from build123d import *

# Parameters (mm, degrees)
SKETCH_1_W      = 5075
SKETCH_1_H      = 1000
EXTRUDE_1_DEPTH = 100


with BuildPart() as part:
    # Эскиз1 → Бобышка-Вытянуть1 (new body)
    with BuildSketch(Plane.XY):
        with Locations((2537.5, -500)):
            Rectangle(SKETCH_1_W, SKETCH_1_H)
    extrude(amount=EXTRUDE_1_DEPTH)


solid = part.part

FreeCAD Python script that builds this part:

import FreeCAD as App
import Part
import Sketcher

V = App.Vector
Q = App.Units.Quantity

doc = App.newDocument("Part")
body = doc.addObject("PartDesign::Body", "Body")

sketch1 = body.newObject("Sketcher::SketchObject", "Sketch")
sketch1.AttachmentSupport = (doc.getObject("XY_Plane"), [""])
sketch1.MapMode = "FlatFace"
sketch1.addGeometry([
    Part.LineSegment(V(0, 0, 0), V(0, -1000, 0)),
    Part.LineSegment(V(0, -1000, 0), V(5075, -1000, 0)),
    Part.LineSegment(V(5075, -1000, 0), V(5075, 0, 0)),
    Part.LineSegment(V(5075, 0, 0), V(0, 0, 0)),
], False)
sketch1.addConstraint([
    Sketcher.Constraint("Coincident", 0, 2, 1, 1),
    Sketcher.Constraint("Coincident", 1, 2, 2, 1),
    Sketcher.Constraint("Coincident", 2, 2, 3, 1),
    Sketcher.Constraint("Coincident", 3, 2, 0, 1),
    Sketcher.Constraint("Vertical", 0),
    Sketcher.Constraint("Horizontal", 1),
    Sketcher.Constraint("Vertical", 2),
    Sketcher.Constraint("Horizontal", 3),
    Sketcher.Constraint("Coincident", 3, 2, -1, 1),
    Sketcher.Constraint("DistanceX", 1, 1, 1, 2, Q("5075 mm")),
    Sketcher.Constraint("DistanceY", 0, 2, 0, 1, Q("1000 mm")),
])
pad1 = body.newObject("PartDesign::Pad", "Pad")
pad1.Profile = sketch1
pad1.Length = 100

doc.recompute()
